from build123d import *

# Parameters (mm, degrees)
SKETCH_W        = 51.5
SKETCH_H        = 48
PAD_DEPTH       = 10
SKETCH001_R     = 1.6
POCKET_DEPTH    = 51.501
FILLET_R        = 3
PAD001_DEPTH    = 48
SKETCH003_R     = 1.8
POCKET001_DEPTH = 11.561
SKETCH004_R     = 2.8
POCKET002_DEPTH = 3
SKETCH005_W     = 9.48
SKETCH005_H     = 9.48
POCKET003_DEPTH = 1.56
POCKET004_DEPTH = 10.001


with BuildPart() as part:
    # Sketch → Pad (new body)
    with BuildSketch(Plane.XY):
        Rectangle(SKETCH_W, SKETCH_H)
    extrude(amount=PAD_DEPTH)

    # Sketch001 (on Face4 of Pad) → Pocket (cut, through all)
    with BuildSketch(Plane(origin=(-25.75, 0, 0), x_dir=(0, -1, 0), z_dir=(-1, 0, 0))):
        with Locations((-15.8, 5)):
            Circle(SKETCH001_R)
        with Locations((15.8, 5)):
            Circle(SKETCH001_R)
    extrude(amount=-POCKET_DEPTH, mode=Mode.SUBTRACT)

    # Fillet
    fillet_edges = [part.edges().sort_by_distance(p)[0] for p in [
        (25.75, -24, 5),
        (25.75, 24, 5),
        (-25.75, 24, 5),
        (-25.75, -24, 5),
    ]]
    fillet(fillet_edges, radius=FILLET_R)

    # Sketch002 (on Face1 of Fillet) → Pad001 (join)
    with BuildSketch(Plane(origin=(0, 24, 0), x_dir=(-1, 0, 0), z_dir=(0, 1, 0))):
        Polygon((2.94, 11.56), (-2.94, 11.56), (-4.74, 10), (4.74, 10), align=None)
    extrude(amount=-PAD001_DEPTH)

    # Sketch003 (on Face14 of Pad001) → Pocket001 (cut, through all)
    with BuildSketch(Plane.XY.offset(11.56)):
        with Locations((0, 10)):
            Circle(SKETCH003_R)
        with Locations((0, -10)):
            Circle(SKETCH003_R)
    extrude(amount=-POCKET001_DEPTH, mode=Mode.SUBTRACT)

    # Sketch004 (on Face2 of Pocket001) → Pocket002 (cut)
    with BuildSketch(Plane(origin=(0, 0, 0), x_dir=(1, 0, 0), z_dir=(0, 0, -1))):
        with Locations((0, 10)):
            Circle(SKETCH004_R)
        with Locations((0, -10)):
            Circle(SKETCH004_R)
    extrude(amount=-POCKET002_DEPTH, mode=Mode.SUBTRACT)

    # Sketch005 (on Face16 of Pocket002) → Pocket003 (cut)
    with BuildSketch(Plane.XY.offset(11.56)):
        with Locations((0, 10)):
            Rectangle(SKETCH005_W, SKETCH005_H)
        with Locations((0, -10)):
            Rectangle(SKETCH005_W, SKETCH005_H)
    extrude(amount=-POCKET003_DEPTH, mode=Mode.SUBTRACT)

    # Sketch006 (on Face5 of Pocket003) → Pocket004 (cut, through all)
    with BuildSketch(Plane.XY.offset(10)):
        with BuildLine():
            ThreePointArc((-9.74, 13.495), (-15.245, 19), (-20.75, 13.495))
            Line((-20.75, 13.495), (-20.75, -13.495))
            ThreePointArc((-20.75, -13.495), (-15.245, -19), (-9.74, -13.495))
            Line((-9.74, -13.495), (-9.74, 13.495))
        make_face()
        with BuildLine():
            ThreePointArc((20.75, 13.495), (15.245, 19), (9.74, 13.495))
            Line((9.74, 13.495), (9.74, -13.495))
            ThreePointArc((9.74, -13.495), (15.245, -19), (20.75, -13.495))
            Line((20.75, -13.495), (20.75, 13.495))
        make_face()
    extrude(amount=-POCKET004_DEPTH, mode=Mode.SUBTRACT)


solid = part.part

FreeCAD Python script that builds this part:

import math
import FreeCAD as App
import Part
import Sketcher
from FreeCAD import Vector


def edges_at(feature, points):
    """Names of the edges that pass closest to the given points."""
    edges = feature.Shape.Edges
    near = lambda p: min(range(len(edges)), key=lambda i: edges[i].distToShape(Part.Vertex(*p))[0])
    return sorted({f"Edge{near(p) + 1}" for p in points})


def add_polygon(sketch, points):
    """Adds a closed chain of lines whose ends are joined by coincident constraints."""
    first, n = sketch.GeometryCount, len(points)
    for a, b in zip(points, points[1:] + points[:1]):
        sketch.addGeometry(Part.LineSegment(App.Vector(*a, 0), App.Vector(*b, 0)), False)
    for i in range(n):
        sketch.addConstraint(Sketcher.Constraint("Coincident", first + i, 2, first + (i + 1) % n, 1))

doc = App.newDocument("Part")
body = doc.addObject("PartDesign::Body", "Body")

sketch1 = body.newObject("Sketcher::SketchObject", "Sketch")
sketch1.AttachmentSupport = (doc.getObject("XY_Plane"), [""])
sketch1.MapMode = "FlatFace"
add_polygon(sketch1, [(-26, 24), (-26, -24), (26, -24), (26, 24)])
sketch1.addConstraint(Sketcher.Constraint("Vertical", 0))
sketch1.addConstraint(Sketcher.Constraint("Horizontal", 1))
sketch1.addConstraint(Sketcher.Constraint("Vertical", 2))
sketch1.addConstraint(Sketcher.Constraint("Horizontal", 3))
sketch1.addConstraint(Sketcher.Constraint("Symmetric", 0, 2, 2, 2, -1, 1))
sketch1.addConstraint(Sketcher.Constraint("DistanceY", 0, 2, 0, 1, 48.0))
sketch1.addConstraint(Sketcher.Constraint("DistanceX", 1, 1, 1, 2, 51.5))
pad1 = body.newObject("PartDesign::Pad", "Pad")
pad1.Profile = sketch1
pad1.Length = 10

sketch2 = body.newObject("Sketcher::SketchObject", "Sketch001")
sketch2.AttachmentSupport = (doc.getObject("YZ_Plane"), [""])
sketch2.MapMode = "FlatFace"
sketch2.AttachmentOffset = App.Placement(Vector(0, 0, -25.75), App.Rotation())
sketch2.addGeometry(Part.Circle(Vector(15.8, 5, 0), Vector(0, 0, 1), 1.6), False)
sketch2.addGeometry(Part.Circle(Vector(-15.8, 5, 0), Vector(0, 0, 1), 1.6), False)
sketch2.addConstraint(Sketcher.Constraint("Equal", 0, 1))
sketch2.addConstraint(Sketcher.Constraint("Symmetric", 0, 3, 1, 3, -2))
sketch2.addConstraint(Sketcher.Constraint("Diameter", 0, 3.2))
sketch2.addConstraint(Sketcher.Constraint("DistanceY", -1, 1, 0, 3, 5.0))
sketch2.addConstraint(Sketcher.Constraint("DistanceX", -1, 1, 0, 3, 15.8))
pocket1 = body.newObject("PartDesign::Pocket", "Pocket")
pocket1.Profile = sketch2
pocket1.Type = "ThroughAll"
pocket1.Reversed = True
doc.recompute()

fillet = body.newObject("PartDesign::Fillet", "Fillet")
fillet.Base = (pocket1, edges_at(pocket1, [
    (25.75, -24, 5),
    (25.75, 24, 5),
    (-25.75, 24, 5),
    (-25.75, -24, 5),
]))
fillet.Radius = 3

sketch3 = body.newObject("Sketcher::SketchObject", "Sketch002")
sketch3.AttachmentSupport = (doc.getObject("XZ_Plane"), [""])
sketch3.MapMode = "FlatFace"
sketch3.AttachmentOffset = App.Placement(Vector(0, 0, -24), App.Rotation())
add_polygon(sketch3, [(-2.9, 11.6), (2.9, 11.6), (4.7, 10), (-4.7, 10)])
sketch3.addConstraint(Sketcher.Constraint("Horizontal", 0))
sketch3.addConstraint(Sketcher.Constraint("Horizontal", 2))
sketch3.addConstraint(Sketcher.Constraint("Equal", 1, 3))
sketch3.addConstraint(Sketcher.Constraint("DistanceY", -1, 1, 1, 2, 10.0))
sketch3.addConstraint(Sketcher.Constraint("DistanceX", 0, 1, 0, 2, 5.88))
sketch3.addConstraint(Sketcher.Constraint("DistanceX", 2, 2, 2, 1, 9.48))
sketch3.addConstraint(Sketcher.Constraint("DistanceX", -1, 1, 0, 2, 2.94))
sketch3.addConstraint(Sketcher.Constraint("DistanceY", -1, 1, 0, 2, 11.56))
pad2 = body.newObject("PartDesign::Pad", "Pad001")
pad2.Profile = sketch3
pad2.Length = 48

sketch4 = body.newObject("Sketcher::SketchObject", "Sketch003")
sketch4.AttachmentSupport = (doc.getObject("XY_Plane"), [""])
sketch4.MapMode = "FlatFace"
sketch4.AttachmentOffset = App.Placement(Vector(0, 0, 11.56), App.Rotation())
sketch4.addGeometry(Part.Circle(Vector(0, 10, 0), Vector(0, 0, 1), 1.8), False)
sketch4.addGeometry(Part.Circle(Vector(0, -10, 0), Vector(0, 0, 1), 1.8), False)
sketch4.addConstraint(Sketcher.Constraint("Equal", 0, 1))
sketch4.addConstraint(Sketcher.Constraint("Symmetric", 0, 3, 1, 3, -1, 1))
sketch4.addConstraint(Sketcher.Constraint("PointOnObject", 0, 3, -2))
sketch4.addConstraint(Sketcher.Constraint("Diameter", 0, 3.6))
sketch4.addConstraint(Sketcher.Constraint("DistanceY", -1, 1, 0, 3, 10.0))
pocket2 = body.newObject("PartDesign::Pocket", "Pocket001")
pocket2.Profile = sketch4
pocket2.Type = "ThroughAll"

sketch5 = body.newObject("Sketcher::SketchObject", "Sketch004")
sketch5.AttachmentSupport = (doc.getObject("XY_Plane"), [""])
sketch5.MapMode = "FlatFace"
sketch5.addGeometry(Part.Circle(Vector(0, -10, 0), Vector(0, 0, 1), 2.8), False)
sketch5.addGeometry(Part.Circle(Vector(0, 10, 0), Vector(0, 0, 1), 2.8), False)
sketch5.addConstraint(Sketcher.Constraint("Equal", 0, 1))
sketch5.addConstraint(Sketcher.Constraint("Symmetric", 0, 3, 1, 3, -1, 1))
sketch5.addConstraint(Sketcher.Constraint("PointOnObject", 0, 3, -2))
sketch5.addConstraint(Sketcher.Constraint("Diameter", 0, 5.6))
sketch5.addConstraint(Sketcher.Constraint("DistanceY", 0, 3, -1, 1, 10.0))
pocket3 = body.newObject("PartDesign::Pocket", "Pocket002")
pocket3.Profile = sketch5
pocket3.Length = 3
pocket3.Reversed = True

sketch6 = body.newObject("Sketcher::SketchObject", "Sketch005")
sketch6.AttachmentSupport = (doc.getObject("XY_Plane"), [""])
sketch6.MapMode = "FlatFace"
sketch6.AttachmentOffset = App.Placement(Vector(0, 0, 11.56), App.Rotation())
add_polygon(sketch6, [(-5, 15), (-5, 5), (5, 5), (5, 15)])
add_polygon(sketch6, [(-5, -5), (-5, -15), (5, -15), (5, -5)])
sketch6.addConstraint(Sketcher.Constraint("Vertical", 0))
sketch6.addConstraint(Sketcher.Constraint("Horizontal", 1))
sketch6.addConstraint(Sketcher.Constraint("Vertical", 2))
sketch6.addConstraint(Sketcher.Constraint("Horizontal", 3))
sketch6.addConstraint(Sketcher.Constraint("Vertical", 4))
sketch6.addConstraint(Sketcher.Constraint("Horizontal", 5))
sketch6.addConstraint(Sketcher.Constraint("Vertical", 6))
sketch6.addConstraint(Sketcher.Constraint("Horizontal", 7))
sketch6.addConstraint(Sketcher.Constraint("Symmetric", 2, 2, 4, 2, -1, 1))
sketch6.addConstraint(Sketcher.Constraint("Symmetric", 0, 2, 6, 2, -1, 1))
sketch6.addConstraint(Sketcher.Constraint("Vertical", 3, 2, 4, 2))
sketch6.addConstraint(Sketcher.Constraint("Equal", 7, 0))
sketch6.addConstraint(Sketcher.Constraint("DistanceY", 4, 2, 0, 2, 20.0))
sketch6.addConstraint(Sketcher.Constraint("DistanceX", 1, 1, 1, 2, 9.48))
pocket4 = body.newObject("PartDesign::Pocket", "Pocket003")
pocket4.Profile = sketch6
pocket4.Length = 1.56

sketch7 = body.newObject("Sketcher::SketchObject", "Sketch006")
sketch7.AttachmentSupport = (doc.getObject("XY_Plane"), [""])
sketch7.MapMode = "FlatFace"
sketch7.AttachmentOffset = App.Placement(Vector(0, 0, 10), App.Rotation())
sketch7.addGeometry(Part.ArcOfCircle(Part.Circle(Vector(-15, 13, 0), Vector(0, 0, 1), 6), math.radians(0), math.radians(180)), False)
sketch7.addGeometry(Part.LineSegment(Vector(-21, 13, 0), Vector(-21, -13, 0)), False)
sketch7.addGeometry(Part.ArcOfCircle(Part.Circle(Vector(-15, -13, 0), Vector(0, 0, 1), 6), math.radians(180), math.radians(360)), False)
sketch7.addGeometry(Part.LineSegment(Vector(-10, -13, 0), Vector(-10, 13, 0)), False)
sketch7.addGeometry(Part.ArcOfCircle(Part.Circle(Vector(15, 13, 0), Vector(0, 0, 1), 6), math.radians(0), math.radians(180)), False)
sketch7.addGeometry(Part.LineSegment(Vector(10, 13, 0), Vector(10, -13, 0)), False)
sketch7.addGeometry(Part.ArcOfCircle(Part.Circle(Vector(15, -13, 0), Vector(0, 0, 1), 6), math.radians(180), math.radians(360)), False)
sketch7.addGeometry(Part.LineSegment(Vector(21, -13, 0), Vector(21, 13, 0)), False)
sketch7.addConstraint(Sketcher.Constraint("Tangent", 0, 2, 1, 1))
sketch7.addConstraint(Sketcher.Constraint("Tangent", 1, 2, 2, 1))
sketch7.addConstraint(Sketcher.Constraint("Tangent", 2, 2, 3, 1))
sketch7.addConstraint(Sketcher.Constraint("Tangent", 3, 2, 0, 1))
sketch7.addConstraint(Sketcher.Constraint("Tangent", 4, 2, 5, 1))
sketch7.addConstraint(Sketcher.Constraint("Tangent", 5, 2, 6, 1))
sketch7.addConstraint(Sketcher.Constraint("Tangent", 6, 2, 7, 1))
sketch7.addConstraint(Sketcher.Constraint("Tangent", 7, 2, 4, 1))
sketch7.addConstraint(Sketcher.Constraint("Vertical", 1))
sketch7.addConstraint(Sketcher.Constraint("Vertical", 3))
sketch7.addConstraint(Sketcher.Constraint("Vertical", 5))
sketch7.addConstraint(Sketcher.Constraint("Vertical", 7))
sketch7.addConstraint(Sketcher.Constraint("Equal", 2, 4))
sketch7.addConstraint(Sketcher.Constraint("Symmetric", 2, 3, 4, 3, -1, 1))
sketch7.addConstraint(Sketcher.Constraint("Horizontal", 0, 3, 4, 3))
sketch7.addConstraint(Sketcher.Constraint("Horizontal", 2, 3, 6, 3))
sketch7.addConstraint(Sketcher.Constraint("Radius", 0, 5.505))
sketch7.addConstraint(Sketcher.Constraint("DistanceY", 1, 2, 1, 1, 26.99))
sketch7.addConstraint(Sketcher.Constraint("DistanceX", 0, 2, -1, 1, 20.75))
pocket5 = body.newObject("PartDesign::Pocket", "Pocket004")
pocket5.Profile = sketch7
pocket5.Type = "ThroughAll"

doc.recompute()
